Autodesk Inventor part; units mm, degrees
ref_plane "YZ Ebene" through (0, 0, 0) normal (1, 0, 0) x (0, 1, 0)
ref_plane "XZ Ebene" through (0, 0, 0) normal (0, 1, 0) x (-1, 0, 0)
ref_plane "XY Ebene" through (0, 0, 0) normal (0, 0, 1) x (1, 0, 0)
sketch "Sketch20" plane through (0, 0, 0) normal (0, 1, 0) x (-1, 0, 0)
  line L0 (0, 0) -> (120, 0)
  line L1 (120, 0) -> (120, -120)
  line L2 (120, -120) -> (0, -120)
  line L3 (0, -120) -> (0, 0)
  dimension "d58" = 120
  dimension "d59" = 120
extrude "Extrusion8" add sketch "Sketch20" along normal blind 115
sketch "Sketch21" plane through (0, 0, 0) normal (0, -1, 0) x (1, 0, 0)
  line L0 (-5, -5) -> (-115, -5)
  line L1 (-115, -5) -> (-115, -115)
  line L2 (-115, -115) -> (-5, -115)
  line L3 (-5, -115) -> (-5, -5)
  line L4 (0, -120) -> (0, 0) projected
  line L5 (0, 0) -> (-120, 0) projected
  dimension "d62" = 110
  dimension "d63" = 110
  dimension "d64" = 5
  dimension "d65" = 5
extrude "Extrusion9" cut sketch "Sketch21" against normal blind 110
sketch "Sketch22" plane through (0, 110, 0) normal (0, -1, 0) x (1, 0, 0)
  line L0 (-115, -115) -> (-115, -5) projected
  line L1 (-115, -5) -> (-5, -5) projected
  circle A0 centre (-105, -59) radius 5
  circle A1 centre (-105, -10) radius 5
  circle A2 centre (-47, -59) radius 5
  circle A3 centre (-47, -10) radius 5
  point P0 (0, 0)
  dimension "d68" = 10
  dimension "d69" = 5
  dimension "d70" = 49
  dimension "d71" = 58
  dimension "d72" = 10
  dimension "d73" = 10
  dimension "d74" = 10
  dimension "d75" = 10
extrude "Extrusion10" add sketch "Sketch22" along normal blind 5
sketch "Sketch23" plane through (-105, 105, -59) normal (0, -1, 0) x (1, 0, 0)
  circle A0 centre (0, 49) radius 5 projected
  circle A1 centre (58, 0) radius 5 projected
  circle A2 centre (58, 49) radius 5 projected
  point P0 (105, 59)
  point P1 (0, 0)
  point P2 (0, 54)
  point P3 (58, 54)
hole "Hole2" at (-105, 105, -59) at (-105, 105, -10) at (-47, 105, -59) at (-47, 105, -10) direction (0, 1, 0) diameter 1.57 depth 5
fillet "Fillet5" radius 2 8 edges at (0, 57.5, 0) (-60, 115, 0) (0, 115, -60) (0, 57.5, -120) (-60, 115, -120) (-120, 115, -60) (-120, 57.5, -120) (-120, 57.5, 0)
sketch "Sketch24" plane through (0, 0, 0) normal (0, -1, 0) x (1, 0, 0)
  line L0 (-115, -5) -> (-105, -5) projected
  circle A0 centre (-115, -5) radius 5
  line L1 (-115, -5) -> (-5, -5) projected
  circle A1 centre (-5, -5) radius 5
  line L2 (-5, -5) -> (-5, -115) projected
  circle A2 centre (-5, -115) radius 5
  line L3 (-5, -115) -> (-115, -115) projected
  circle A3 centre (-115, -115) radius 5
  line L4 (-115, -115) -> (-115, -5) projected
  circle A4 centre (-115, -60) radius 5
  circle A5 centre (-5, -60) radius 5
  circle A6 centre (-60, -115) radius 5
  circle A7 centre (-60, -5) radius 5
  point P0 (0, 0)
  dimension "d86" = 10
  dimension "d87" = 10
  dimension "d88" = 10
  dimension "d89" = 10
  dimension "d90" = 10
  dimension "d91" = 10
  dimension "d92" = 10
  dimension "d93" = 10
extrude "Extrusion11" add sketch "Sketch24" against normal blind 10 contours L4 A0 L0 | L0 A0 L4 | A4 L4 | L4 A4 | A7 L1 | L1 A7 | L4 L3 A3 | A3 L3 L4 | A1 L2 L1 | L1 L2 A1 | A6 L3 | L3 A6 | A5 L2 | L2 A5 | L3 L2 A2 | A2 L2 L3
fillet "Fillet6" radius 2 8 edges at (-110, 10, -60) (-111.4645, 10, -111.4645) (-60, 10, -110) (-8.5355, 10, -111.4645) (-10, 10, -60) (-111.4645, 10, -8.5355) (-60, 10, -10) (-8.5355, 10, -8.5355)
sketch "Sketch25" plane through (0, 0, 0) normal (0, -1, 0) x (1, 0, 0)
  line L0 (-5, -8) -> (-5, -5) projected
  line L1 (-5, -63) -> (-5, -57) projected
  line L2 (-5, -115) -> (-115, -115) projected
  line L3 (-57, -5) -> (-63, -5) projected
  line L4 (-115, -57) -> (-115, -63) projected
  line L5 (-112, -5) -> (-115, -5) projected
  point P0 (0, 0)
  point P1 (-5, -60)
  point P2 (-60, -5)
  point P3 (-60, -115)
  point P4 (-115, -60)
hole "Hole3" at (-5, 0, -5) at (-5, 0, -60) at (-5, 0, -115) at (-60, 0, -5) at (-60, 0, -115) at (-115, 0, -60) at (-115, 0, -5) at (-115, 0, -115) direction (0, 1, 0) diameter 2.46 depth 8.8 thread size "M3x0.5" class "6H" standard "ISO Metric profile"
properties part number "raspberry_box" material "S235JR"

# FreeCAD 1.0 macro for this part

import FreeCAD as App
import Part
import Sketcher
from FreeCAD import Vector


def edges_at(feature, points):
    """Names of the edges that pass closest to the given points."""
    edges = feature.Shape.Edges
    near = lambda p: min(range(len(edges)), key=lambda i: edges[i].distToShape(Part.Vertex(*p))[0])
    return sorted({f"Edge{near(p) + 1}" for p in points})


def add_polygon(sketch, points):
    """Adds a closed chain of lines whose ends are joined by coincident constraints."""
    first, n = sketch.GeometryCount, len(points)
    for a, b in zip(points, points[1:] + points[:1]):
        sketch.addGeometry(Part.LineSegment(App.Vector(*a, 0), App.Vector(*b, 0)), False)
    for i in range(n):
        sketch.addConstraint(Sketcher.Constraint("Coincident", first + i, 2, first + (i + 1) % n, 1))

doc = App.newDocument("Part")
body = doc.addObject("PartDesign::Body", "Body")

sketch1 = body.newObject("Sketcher::SketchObject", "Sketch")
sketch1.AttachmentSupport = (doc.getObject("XZ_Plane"), [""])
sketch1.MapMode = "FlatFace"
add_polygon(sketch1, [(-120, 0), (0, 0), (0, -120), (-120, -120)])
sketch1.addConstraint([
    Sketcher.Constraint("Horizontal", 0),
    Sketcher.Constraint("Vertical", 1),
    Sketcher.Constraint("Horizontal", 2),
    Sketcher.Constraint("Vertical", 3),
    Sketcher.Constraint("Coincident", 0, 2, -1, 1),
    Sketcher.Constraint("Equal", 2, 1),
    Sketcher.Constraint("DistanceX", 0, 1, 0, 2, 120.0),
])
pad1 = body.newObject("PartDesign::Pad", "Pad")
pad1.Profile = sketch1
pad1.Length = 115
pad1.Reversed = True

sketch2 = body.newObject("Sketcher::SketchObject", "Sketch001")
sketch2.AttachmentSupport = (doc.getObject("XZ_Plane"), [""])
sketch2.MapMode = "FlatFace"
add_polygon(sketch2, [(-5, -115), (-5, -5), (-115, -5), (-115, -115)])
sketch2.addConstraint([
    Sketcher.Constraint("Vertical", 0),
    Sketcher.Constraint("Horizontal", 1),
    Sketcher.Constraint("Vertical", 2),
    Sketcher.Constraint("Horizontal", 3),
    Sketcher.Constraint("Equal", 3, 0),
    Sketcher.Constraint("DistanceX", 1, 2, 1, 1, 110.0),
    Sketcher.Constraint("DistanceX", 0, 2, -1, 1, 5.0),
    Sketcher.Constraint("DistanceY", 0, 2, -1, 1, 5.0),
])
pocket1 = body.newObject("PartDesign::Pocket", "Pocket")
pocket1.Profile = sketch2
pocket1.Length = 110

sketch3 = body.newObject("Sketcher::SketchObject", "Sketch002")
sketch3.AttachmentSupport = (doc.getObject("XZ_Plane"), [""])
sketch3.MapMode = "FlatFace"
sketch3.AttachmentOffset = App.Placement(Vector(0, 0, -110), App.Rotation())
sketch3.addGeometry([
    Part.Circle(Vector(-47, -10, 0), Vector(0, 0, 1), 5),
    Part.Circle(Vector(-105, -10, 0), Vector(0, 0, 1), 5),
    Part.Circle(Vector(-105, -59, 0), Vector(0, 0, 1), 5),
    Part.Circle(Vector(-47, -59, 0), Vector(0, 0, 1), 5),
], False)
sketch3.addConstraint([
    Sketcher.Constraint("Equal", 0, 1),
    Sketcher.Constraint("Equal", 1, 2),
    Sketcher.Constraint("Equal", 2, 3),
    Sketcher.Constraint("Horizontal", 0, 3, 1, 3),
    Sketcher.Constraint("Horizontal", 2, 3, 3, 3),
    Sketcher.Constraint("Vertical", 1, 3, 2, 3),
    Sketcher.Constraint("Vertical", 0, 3, 3, 3),
    Sketcher.Constraint("Diameter", 0, 10.0),
    Sketcher.Constraint("DistanceY", 0, 3, -1, 1, 10.0),
    Sketcher.Constraint("DistanceX", 1, 3, 0, 3, 58.0),
    Sketcher.Constraint("DistanceY", 2, 3, 1, 3, 49.0),
    Sketcher.Constraint("DistanceX", 0, 3, -1, 1, 47.0),
])
pad2 = body.newObject("PartDesign::Pad", "Pad001")
pad2.Profile = sketch3
pad2.Length = 5

sketch4 = body.newObject("Sketcher::SketchObject", "Sketch003")
sketch4.AttachmentSupport = (doc.getObject("XZ_Plane"), [""])
sketch4.MapMode = "FlatFace"
sketch4.AttachmentOffset = App.Placement(Vector(0, 0, -105), App.Rotation())
sketch4.addGeometry([
    Part.Circle(Vector(-105, -59, 0), Vector(0, 0, 1), 0.785),
    Part.Circle(Vector(-105, -10, 0), Vector(0, 0, 1), 0.785),
    Part.Circle(Vector(-47, -59, 0), Vector(0, 0, 1), 0.785),
    Part.Circle(Vector(-47, -10, 0), Vector(0, 0, 1), 0.785),
], False)
sketch4.addConstraint([
    Sketcher.Constraint("Equal", 0, 1),
    Sketcher.Constraint("Equal", 1, 2),
    Sketcher.Constraint("Equal", 2, 3),
    Sketcher.Constraint("Horizontal", 0, 3, 2, 3),
    Sketcher.Constraint("Horizontal", 1, 3, 3, 3),
    Sketcher.Constraint("Vertical", 0, 3, 1, 3),
    Sketcher.Constraint("Vertical", 2, 3, 3, 3),
    Sketcher.Constraint("Diameter", 0, 1.57),
    Sketcher.Constraint("DistanceX", 0, 3, -1, 1, 105.0),
    Sketcher.Constraint("DistanceY", 0, 3, -1, 1, 59.0),
    Sketcher.Constraint("DistanceY", 1, 3, -1, 1, 10.0),
    Sketcher.Constraint("DistanceX", 2, 3, -1, 1, 47.0),
])
doc.recompute()
hole = body.newObject("PartDesign::Hole", "Hole")
hole.Profile = sketch4
hole.ThreadType = "None"
hole.Diameter = 1.57
hole.DepthType = "Dimension"
hole.Depth = 5
hole.DrillPoint = "Flat"
doc.recompute()

fillet = body.newObject("PartDesign::Fillet", "Fillet")
fillet.Base = (hole, edges_at(hole, [
    (0, 57.5, 0),
    (-60, 115, 0),
    (0, 115, -60),
    (0, 57.5, -120),
    (-60, 115, -120),
    (-120, 115, -60),
    (-120, 57.5, -120),
    (-120, 57.5, 0),
]))
fillet.Radius = 2

sketch5 = body.newObject("Sketcher::SketchObject", "Sketch004")
sketch5.AttachmentSupport = (doc.getObject("XZ_Plane"), [""])
sketch5.MapMode = "FlatFace"
sketch5.addGeometry([
    Part.Circle(Vector(-115, -5, 0), Vector(0, 0, 1), 5),
    Part.Circle(Vector(-115, -60, 0), Vector(0, 0, 1), 5),
    Part.Circle(Vector(-60, -5, 0), Vector(0, 0, 1), 5),
    Part.Circle(Vector(-115, -115, 0), Vector(0, 0, 1), 5),
    Part.Circle(Vector(-5, -5, 0), Vector(0, 0, 1), 5),
    Part.Circle(Vector(-60, -115, 0), Vector(0, 0, 1), 5),
    Part.Circle(Vector(-5, -60, 0), Vector(0, 0, 1), 5),
    Part.Circle(Vector(-5, -115, 0), Vector(0, 0, 1), 5),
], False)
sketch5.addConstraint([
    Sketcher.Constraint("Equal", 0, 1),
    Sketcher.Constraint("Equal", 1, 2),
    Sketcher.Constraint("Equal", 2, 3),
    Sketcher.Constraint("Equal", 3, 4),
    Sketcher.Constraint("Equal", 4, 5),
    Sketcher.Constraint("Equal", 5, 6),
    Sketcher.Constraint("Equal", 6, 7),
    Sketcher.Constraint("Horizontal", 0, 3, 2, 3),
    Sketcher.Constraint("Horizontal", 2, 3, 4, 3),
    Sketcher.Constraint("Horizontal", 3, 3, 5, 3),
    Sketcher.Constraint("Horizontal", 1, 3, 6, 3),
    Sketcher.Constraint("Horizontal", 5, 3, 7, 3),
    Sketcher.Constraint("Vertical", 0, 3, 1, 3),
    Sketcher.Constraint("Vertical", 1, 3, 3, 3),
    Sketcher.Constraint("Vertical", 2, 3, 5, 3),
    Sketcher.Constraint("Vertical", 4, 3, 6, 3),
    Sketcher.Constraint("Vertical", 6, 3, 7, 3),
    Sketcher.Constraint("Diameter", 0, 10.0),
    Sketcher.Constraint("DistanceX", 0, 3, -1, 1, 115.0),
    Sketcher.Constraint("DistanceY", 0, 3, -1, 1, 5.0),
    Sketcher.Constraint("DistanceY", 1, 3, -1, 1, 60.0),
    Sketcher.Constraint("DistanceX", 2, 3, -1, 1, 60.0),
    Sketcher.Constraint("DistanceY", 3, 3, -1, 1, 115.0),
    Sketcher.Constraint("DistanceX", 4, 3, -1, 1, 5.0),
])
pad3 = body.newObject("PartDesign::Pad", "Pad002")
pad3.Profile = sketch5
pad3.Length = 10
pad3.Reversed = True
doc.recompute()

fillet2 = body.newObject("PartDesign::Fillet", "Fillet001")
fillet2.Base = (pad3, edges_at(pad3, [
    (-110, 10, -60),
    (-111.465, 10, -111.465),
    (-60, 10, -110),
    (-8.536, 10, -111.465),
    (-10, 10, -60),
    (-111.465, 10, -8.536),
    (-60, 10, -10),
    (-8.536, 10, -8.536),
]))
fillet2.Radius = 2

sketch6 = body.newObject("Sketcher::SketchObject", "Sketch005")
sketch6.AttachmentSupport = (doc.getObject("XZ_Plane"), [""])
sketch6.MapMode = "FlatFace"
sketch6.addGeometry([
    Part.Circle(Vector(-5, -5, 0), Vector(0, 0, 1), 1.23),
    Part.Circle(Vector(-5, -60, 0), Vector(0, 0, 1), 1.23),
    Part.Circle(Vector(-5, -115, 0), Vector(0, 0, 1), 1.23),
    Part.Circle(Vector(-60, -5, 0), Vector(0, 0, 1), 1.23),
    Part.Circle(Vector(-60, -115, 0), Vector(0, 0, 1), 1.23),
    Part.Circle(Vector(-115, -60, 0), Vector(0, 0, 1), 1.23),
    Part.Circle(Vector(-115, -5, 0), Vector(0, 0, 1), 1.23),
    Part.Circle(Vector(-115, -115, 0), Vector(0, 0, 1), 1.23),
], False)
sketch6.addConstraint([
    Sketcher.Constraint("Equal", 0, 1),
    Sketcher.Constraint("Equal", 1, 2),
    Sketcher.Constraint("Equal", 2, 3),
    Sketcher.Constraint("Equal", 3, 4),
    Sketcher.Constraint("Equal", 4, 5),
    Sketcher.Constraint("Equal", 5, 6),
    Sketcher.Constraint("Equal", 6, 7),
    Sketcher.Constraint("Horizontal", 0, 3, 3, 3),
    Sketcher.Constraint("Horizontal", 2, 3, 4, 3),
    Sketcher.Constraint("Horizontal", 1, 3, 5, 3),
    Sketcher.Constraint("Horizontal", 3, 3, 6, 3),
    Sketcher.Constraint("Horizontal", 4, 3, 7, 3),
    Sketcher.Constraint("Vertical", 0, 3, 1, 3),
    Sketcher.Constraint("Vertical", 1, 3, 2, 3),
    Sketcher.Constraint("Vertical", 3, 3, 4, 3),
    Sketcher.Constraint("Vertical", 5, 3, 6, 3),
    Sketcher.Constraint("Vertical", 6, 3, 7, 3),
    Sketcher.Constraint("Diameter", 0, 2.46),
    Sketcher.Constraint("DistanceX", 0, 3, -1, 1, 5.0),
    Sketcher.Constraint("DistanceY", 0, 3, -1, 1, 5.0),
    Sketcher.Constraint("DistanceY", 1, 3, -1, 1, 60.0),
    Sketcher.Constraint("DistanceY", 2, 3, -1, 1, 115.0),
    Sketcher.Constraint("DistanceX", 3, 3, -1, 1, 60.0),
    Sketcher.Constraint("DistanceX", 5, 3, -1, 1, 115.0),
])
doc.recompute()
hole2 = body.newObject("PartDesign::Hole", "Hole001")
hole2.Profile = sketch6
hole2.ThreadType = "None"
hole2.Diameter = 2.46
hole2.DepthType = "Dimension"
hole2.Depth = 8.8
hole2.DrillPoint = "Flat"

doc.recompute()
